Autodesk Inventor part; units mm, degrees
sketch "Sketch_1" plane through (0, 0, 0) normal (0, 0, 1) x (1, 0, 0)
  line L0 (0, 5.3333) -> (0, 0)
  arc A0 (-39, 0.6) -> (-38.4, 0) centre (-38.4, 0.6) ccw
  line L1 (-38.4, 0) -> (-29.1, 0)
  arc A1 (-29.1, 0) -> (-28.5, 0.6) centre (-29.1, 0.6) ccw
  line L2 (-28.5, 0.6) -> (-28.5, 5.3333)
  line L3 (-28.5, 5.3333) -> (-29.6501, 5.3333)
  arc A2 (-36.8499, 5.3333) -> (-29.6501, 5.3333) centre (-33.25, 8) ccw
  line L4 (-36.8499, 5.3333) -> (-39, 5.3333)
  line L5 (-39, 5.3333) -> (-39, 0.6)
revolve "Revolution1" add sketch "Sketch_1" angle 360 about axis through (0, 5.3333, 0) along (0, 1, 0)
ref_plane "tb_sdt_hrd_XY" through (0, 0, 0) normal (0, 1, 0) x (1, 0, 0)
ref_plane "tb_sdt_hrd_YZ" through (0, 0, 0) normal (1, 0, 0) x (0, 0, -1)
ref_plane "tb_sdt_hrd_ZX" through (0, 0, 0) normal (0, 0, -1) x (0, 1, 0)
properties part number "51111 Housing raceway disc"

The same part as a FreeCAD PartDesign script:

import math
import FreeCAD as App
import Part
import Sketcher
from FreeCAD import Vector
Q = App.Units.Quantity

doc = App.newDocument("Part")
body = doc.addObject("PartDesign::Body", "Body")

# Sketch on XY plane
sketch1 = body.newObject("Sketcher::SketchObject", "Sketch")
sketch1.AttachmentSupport = (doc.getObject("XY_Plane"), [""])
sketch1.MapMode = "FlatFace"
sketch1.addGeometry([
    Part.LineSegment(Vector(-39, 5.3, 0), Vector(-39, 0.6, 0)),  # 0
    Part.ArcOfCircle(Part.Circle(Vector(-38.4, 0.6, 0), Vector(0, 0, 1), 0.6), math.radians(180), math.radians(270)),  # 1
    Part.LineSegment(Vector(-38.4, 0, 0), Vector(-29.1, 0, 0)),  # 2
    Part.ArcOfCircle(Part.Circle(Vector(-29.1, 0.6, 0), Vector(0, 0, 1), 0.6), math.radians(-90), math.radians(0)),  # 3
    Part.LineSegment(Vector(-28.5, 0.6, 0), Vector(-28.5, 5.3, 0)),  # 4
    Part.LineSegment(Vector(-28.5, 5.3, 0), Vector(-29.7, 5.3, 0)),  # 5
    Part.ArcOfCircle(Part.Circle(Vector(-33.2, 8, 0), Vector(0, 0, 1), 4.5), math.radians(-143), math.radians(-37)),  # 6
    Part.LineSegment(Vector(-36.8, 5.3, 0), Vector(-39, 5.3, 0)),  # 7
], False)
sketch1.addConstraint([
    Sketcher.Constraint("Tangent", 0, 2, 1, 1),
    Sketcher.Constraint("Tangent", 1, 2, 2, 1),
    Sketcher.Constraint("Tangent", 2, 2, 3, 1),
    Sketcher.Constraint("Tangent", 3, 2, 4, 1),
    Sketcher.Constraint("Coincident", 4, 2, 5, 1),
    Sketcher.Constraint("Coincident", 5, 2, 6, 2),
    Sketcher.Constraint("Coincident", 6, 1, 7, 1),
    Sketcher.Constraint("Coincident", 7, 2, 0, 1),
    Sketcher.Constraint("Vertical", 0),
    Sketcher.Constraint("Horizontal", 2),
    Sketcher.Constraint("Vertical", 4),
    Sketcher.Constraint("Horizontal", 5),
    Sketcher.Constraint("Horizontal", 7),
    Sketcher.Constraint("Equal", 1, 3),
    Sketcher.Constraint("PointOnObject", 1, 2, -1),
    Sketcher.Constraint("Horizontal", 5, 2, 6, 1),
    Sketcher.Constraint("Radius", 1, Q("0.6 mm")),
    Sketcher.Constraint("Radius", 6, Q("4.48 mm")),
    Sketcher.Constraint("DistanceX", 2, 1, 2, 2, Q("9.3 mm")),
    Sketcher.Constraint("DistanceY", -1, 1, 6, 3, Q("8 mm")),
    Sketcher.Constraint("DistanceX", 0, 2, -1, 1, Q("39 mm")),
    Sketcher.Constraint("DistanceX", 5, 2, 5, 1, Q("1.15 mm")),
    Sketcher.Constraint("DistanceX", 7, 2, 7, 1, Q("2.15 mm")),
])
revolution = body.newObject("PartDesign::Revolution", "Revolution")
revolution.Profile = sketch1
revolution.ReferenceAxis = (sketch1, ["V_Axis"])
revolution.Angle = 360

doc.recompute()
